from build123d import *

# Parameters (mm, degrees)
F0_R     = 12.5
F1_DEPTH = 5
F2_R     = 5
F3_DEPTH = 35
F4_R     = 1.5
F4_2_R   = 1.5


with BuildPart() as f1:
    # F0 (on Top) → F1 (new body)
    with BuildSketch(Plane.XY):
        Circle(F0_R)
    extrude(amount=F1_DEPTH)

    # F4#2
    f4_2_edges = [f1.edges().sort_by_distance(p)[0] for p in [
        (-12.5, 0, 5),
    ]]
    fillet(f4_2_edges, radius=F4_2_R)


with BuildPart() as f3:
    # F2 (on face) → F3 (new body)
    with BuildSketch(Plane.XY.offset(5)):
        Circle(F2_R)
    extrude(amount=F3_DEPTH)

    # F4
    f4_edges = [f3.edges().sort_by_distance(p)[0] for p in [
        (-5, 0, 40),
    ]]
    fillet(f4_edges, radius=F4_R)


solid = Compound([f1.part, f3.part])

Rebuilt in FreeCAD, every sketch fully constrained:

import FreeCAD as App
import Part
import Sketcher
from FreeCAD import Vector


def edges_at(feature, points):
    """Names of the edges that pass closest to the given points."""
    edges = feature.Shape.Edges
    near = lambda p: min(range(len(edges)), key=lambda i: edges[i].distToShape(Part.Vertex(*p))[0])
    return sorted({f"Edge{near(p) + 1}" for p in points})

doc = App.newDocument("Part")
body = doc.addObject("PartDesign::Body", "Body")

sketch1 = body.newObject("Sketcher::SketchObject", "Sketch")
sketch1.AttachmentSupport = (doc.getObject("XY_Plane"), [""])
sketch1.MapMode = "FlatFace"
sketch1.addGeometry(Part.Circle(Vector(0, 0, 0), Vector(0, 0, 1), 12), False)
sketch1.addConstraint(Sketcher.Constraint("Coincident", 0, 3, -1, 1))
sketch1.addConstraint(Sketcher.Constraint("Diameter", 0, 25.0))
pad1 = body.newObject("PartDesign::Pad", "Pad")
pad1.Profile = sketch1
pad1.Length = 5
doc.recompute()

fillet = body.newObject("PartDesign::Fillet", "Fillet")
fillet.Base = (pad1, edges_at(pad1, [(-12.5, 0, 5)]))
fillet.Radius = 1.5
body2 = doc.addObject("PartDesign::Body", "Body001")

sketch2 = body2.newObject("Sketcher::SketchObject", "Sketch001")
sketch2.AttachmentSupport = (doc.getObject("XY_Plane001"), [""])
sketch2.MapMode = "FlatFace"
sketch2.AttachmentOffset = App.Placement(Vector(0, 0, 5), App.Rotation())
sketch2.addGeometry(Part.Circle(Vector(0, 0, 0), Vector(0, 0, 1), 5), False)
sketch2.addConstraint(Sketcher.Constraint("Coincident", 0, 3, -1, 1))
sketch2.addConstraint(Sketcher.Constraint("Diameter", 0, 10.0))
pad2 = body2.newObject("PartDesign::Pad", "Pad001")
pad2.Profile = sketch2
pad2.Length = 35
doc.recompute()

fillet2 = body2.newObject("PartDesign::Fillet", "Fillet001")
fillet2.Base = (pad2, edges_at(pad2, [(-5, 0, 40)]))
fillet2.Radius = 1.5

doc.recompute()
